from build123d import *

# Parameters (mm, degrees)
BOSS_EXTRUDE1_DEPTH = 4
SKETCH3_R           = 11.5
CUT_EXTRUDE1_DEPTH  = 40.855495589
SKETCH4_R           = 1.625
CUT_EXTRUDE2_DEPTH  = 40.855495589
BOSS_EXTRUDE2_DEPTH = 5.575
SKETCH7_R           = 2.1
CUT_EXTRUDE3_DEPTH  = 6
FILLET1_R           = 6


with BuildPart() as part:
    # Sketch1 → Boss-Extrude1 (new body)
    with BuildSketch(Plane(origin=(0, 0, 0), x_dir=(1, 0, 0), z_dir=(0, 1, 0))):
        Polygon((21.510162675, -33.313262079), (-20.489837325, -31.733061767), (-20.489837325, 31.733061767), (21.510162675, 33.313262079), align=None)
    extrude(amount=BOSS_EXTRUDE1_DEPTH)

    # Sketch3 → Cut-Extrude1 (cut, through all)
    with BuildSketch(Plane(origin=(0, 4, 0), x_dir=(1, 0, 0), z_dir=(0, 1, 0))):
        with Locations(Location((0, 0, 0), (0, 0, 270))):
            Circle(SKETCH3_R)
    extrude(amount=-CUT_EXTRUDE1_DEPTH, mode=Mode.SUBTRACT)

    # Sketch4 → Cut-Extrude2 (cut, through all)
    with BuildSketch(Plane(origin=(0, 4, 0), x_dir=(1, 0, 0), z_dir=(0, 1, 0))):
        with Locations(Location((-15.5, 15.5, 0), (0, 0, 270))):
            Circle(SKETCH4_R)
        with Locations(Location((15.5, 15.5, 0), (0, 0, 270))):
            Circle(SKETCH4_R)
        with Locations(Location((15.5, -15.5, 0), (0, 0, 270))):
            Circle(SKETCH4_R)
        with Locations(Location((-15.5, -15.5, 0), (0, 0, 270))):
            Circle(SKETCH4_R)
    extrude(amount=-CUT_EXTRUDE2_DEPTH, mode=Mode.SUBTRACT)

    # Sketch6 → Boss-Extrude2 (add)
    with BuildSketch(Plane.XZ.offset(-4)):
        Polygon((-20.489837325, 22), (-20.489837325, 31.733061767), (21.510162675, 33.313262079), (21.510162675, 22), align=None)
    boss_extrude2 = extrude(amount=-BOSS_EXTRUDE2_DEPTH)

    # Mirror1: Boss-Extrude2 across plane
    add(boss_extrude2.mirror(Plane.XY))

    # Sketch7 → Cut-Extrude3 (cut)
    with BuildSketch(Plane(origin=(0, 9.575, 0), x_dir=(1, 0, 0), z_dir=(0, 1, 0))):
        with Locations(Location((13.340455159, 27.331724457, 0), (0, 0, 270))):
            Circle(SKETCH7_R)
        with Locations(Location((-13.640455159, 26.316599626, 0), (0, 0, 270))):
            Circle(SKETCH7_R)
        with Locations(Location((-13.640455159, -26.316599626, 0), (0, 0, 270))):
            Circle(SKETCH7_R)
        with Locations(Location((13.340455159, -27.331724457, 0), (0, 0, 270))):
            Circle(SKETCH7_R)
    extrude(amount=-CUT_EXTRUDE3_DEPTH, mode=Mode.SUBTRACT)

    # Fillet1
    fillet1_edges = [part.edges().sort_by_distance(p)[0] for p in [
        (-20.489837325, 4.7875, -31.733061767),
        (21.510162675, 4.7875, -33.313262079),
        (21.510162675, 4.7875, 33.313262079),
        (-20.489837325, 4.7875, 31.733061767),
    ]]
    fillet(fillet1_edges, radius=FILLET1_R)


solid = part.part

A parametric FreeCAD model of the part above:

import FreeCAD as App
import Part
import Sketcher
from FreeCAD import Vector


def edges_at(feature, points):
    """Names of the edges that pass closest to the given points."""
    edges = feature.Shape.Edges
    near = lambda p: min(range(len(edges)), key=lambda i: edges[i].distToShape(Part.Vertex(*p))[0])
    return sorted({f"Edge{near(p) + 1}" for p in points})

doc = App.newDocument("Part")
body = doc.addObject("PartDesign::Body", "Body")

# Sketch on XZ plane
sketch1 = doc.addObject("Sketcher::SketchObject", "Sketch")
body.addObject(sketch1)
sketch1.AttachmentSupport = (doc.XZ_Plane, [""])
sketch1.MapMode = "FlatFace"
sketch1.addGeometry([
    Part.LineSegment(Vector(-20.489837, 31.733062, 0), Vector(21.510163, 33.313262, 0)),
    Part.LineSegment(Vector(21.510163, 33.313262, 0), Vector(21.510163, -33.313262, 0)),
    Part.LineSegment(Vector(21.510163, -33.313262, 0), Vector(-20.489837, -31.733062, 0)),
    Part.LineSegment(Vector(-20.489837, -31.733062, 0), Vector(-20.489837, 31.733062, 0)),
], False)
sketch1.addConstraint([
    Sketcher.Constraint("Coincident", 0, 2, 1, 1),
    Sketcher.Constraint("Coincident", 1, 2, 2, 1),
    Sketcher.Constraint("Coincident", 2, 2, 3, 1),
    Sketcher.Constraint("Coincident", 3, 2, 0, 1),
    Sketcher.Constraint("Vertical", 1),
    Sketcher.Constraint("Vertical", 3),
    Sketcher.Constraint("Equal", 0, 2),
    Sketcher.Constraint("DistanceX", 2, 2, 1, 2, 42.0),
    Sketcher.Constraint("DistanceY", 1, 2, 2, 2, 1.5802),
    Sketcher.Constraint("DistanceY", 1, 2, 1, 1, 66.626524),
    Sketcher.Constraint("DistanceY", 2, 2, -1, 1, 31.733062),
    Sketcher.Constraint("DistanceX", -1, 1, 0, 2, 21.510163),
])
pad1 = doc.addObject("PartDesign::Pad", "Pad")
body.addObject(pad1)
pad1.Profile = sketch1
pad1.Length = 4
pad1.Reversed = True

# Sketch on XZ plane
sketch2 = doc.addObject("Sketcher::SketchObject", "Sketch001")
body.addObject(sketch2)
sketch2.AttachmentSupport = (doc.XZ_Plane, [""])
sketch2.MapMode = "FlatFace"
sketch2.AttachmentOffset = App.Placement(Vector(0, 0, -4), App.Rotation())
sketch2.addGeometry(Part.Circle(Vector(0, 0, 0), Vector(0, 0, 1), 11.5), False)
sketch2.addConstraint([
    Sketcher.Constraint("Coincident", 0, 3, -1, 1),
    Sketcher.Constraint("Diameter", 0, 23.0),
])
pocket1 = doc.addObject("PartDesign::Pocket", "Pocket")
body.addObject(pocket1)
pocket1.Profile = sketch2
pocket1.Type = "ThroughAll"
pocket1.Reversed = True

# Sketch on XZ plane
sketch3 = doc.addObject("Sketcher::SketchObject", "Sketch002")
body.addObject(sketch3)
sketch3.AttachmentSupport = (doc.XZ_Plane, [""])
sketch3.MapMode = "FlatFace"
sketch3.AttachmentOffset = App.Placement(Vector(0, 0, -4), App.Rotation())
sketch3.addGeometry([
    Part.Circle(Vector(-15.5, -15.5, 0), Vector(0, 0, 1), 1.625),
    Part.Circle(Vector(15.5, -15.5, 0), Vector(0, 0, 1), 1.625),
    Part.Circle(Vector(15.5, 15.5, 0), Vector(0, 0, 1), 1.625),
    Part.Circle(Vector(-15.5, 15.5, 0), Vector(0, 0, 1), 1.625),
], False)
sketch3.addConstraint([
    Sketcher.Constraint("Equal", 0, 1),
    Sketcher.Constraint("Equal", 1, 2),
    Sketcher.Constraint("Equal", 2, 3),
    Sketcher.Constraint("Symmetric", 0, 3, 2, 3, -1, 1),
    Sketcher.Constraint("Symmetric", 1, 3, 3, 3, -1, 1),
    Sketcher.Constraint("Symmetric", 0, 3, 1, 3, -2),
    Sketcher.Constraint("Diameter", 0, 3.25),
    Sketcher.Constraint("DistanceX", 0, 3, 1, 3, 31.0),
    Sketcher.Constraint("DistanceY", 1, 3, 2, 3, 31.0),
])
pocket2 = doc.addObject("PartDesign::Pocket", "Pocket001")
body.addObject(pocket2)
pocket2.Profile = sketch3
pocket2.Type = "ThroughAll"
pocket2.Reversed = True

# Sketch on XZ plane
sketch4 = doc.addObject("Sketcher::SketchObject", "Sketch003")
body.addObject(sketch4)
sketch4.AttachmentSupport = (doc.XZ_Plane, [""])
sketch4.MapMode = "FlatFace"
sketch4.AttachmentOffset = App.Placement(Vector(0, 0, -4), App.Rotation())
sketch4.addGeometry([
    Part.LineSegment(Vector(-20.489837, 31.733062, 0), Vector(-20.489837, 22, 0)),
    Part.LineSegment(Vector(-20.489837, 22, 0), Vector(21.510163, 22, 0)),
    Part.LineSegment(Vector(21.510163, 22, 0), Vector(21.510163, 33.313262, 0)),
    Part.LineSegment(Vector(21.510163, 33.313262, 0), Vector(-20.489837, 31.733062, 0)),
], False)
sketch4.addConstraint([
    Sketcher.Constraint("Coincident", 0, 2, 1, 1),
    Sketcher.Constraint("Coincident", 1, 2, 2, 1),
    Sketcher.Constraint("Coincident", 2, 2, 3, 1),
    Sketcher.Constraint("Coincident", 3, 2, 0, 1),
    Sketcher.Constraint("Vertical", 0),
    Sketcher.Constraint("Horizontal", 1),
    Sketcher.Constraint("Vertical", 2),
    Sketcher.Constraint("DistanceX", 1, 1, 1, 2, 42.0),
    Sketcher.Constraint("DistanceY", -1, 1, 0, 2, 22.0),
    Sketcher.Constraint("DistanceY", 0, 2, 0, 1, 9.733062),
    Sketcher.Constraint("DistanceY", 3, 2, 2, 2, 1.5802),
    Sketcher.Constraint("DistanceX", 0, 2, -1, 1, 20.489837),
])
pad2 = doc.addObject("PartDesign::Pad", "Pad001")
body.addObject(pad2)
pad2.Profile = sketch4
pad2.Length = 5.575
pad2.Reversed = True
doc.recompute()

mirrored = doc.addObject("PartDesign::Mirrored", "Mirrored")
body.addObject(mirrored)
mirrored.Originals = [pad2]
mirrored.MirrorPlane = (doc.XY_Plane, [""])
body.Tip = mirrored

# Sketch on XZ plane
sketch5 = doc.addObject("Sketcher::SketchObject", "Sketch004")
body.addObject(sketch5)
sketch5.AttachmentSupport = (doc.XZ_Plane, [""])
sketch5.MapMode = "FlatFace"
sketch5.AttachmentOffset = App.Placement(Vector(0, 0, -9.575), App.Rotation())
sketch5.addGeometry([
    Part.Circle(Vector(13.340455, -27.331724, 0), Vector(0, 0, 1), 2.1),
    Part.Circle(Vector(-13.640455, -26.3166, 0), Vector(0, 0, 1), 2.1),
    Part.Circle(Vector(-13.640455, 26.3166, 0), Vector(0, 0, 1), 2.1),
    Part.Circle(Vector(13.340455, 27.331724, 0), Vector(0, 0, 1), 2.1),
], False)
sketch5.addConstraint([
    Sketcher.Constraint("Equal", 0, 1),
    Sketcher.Constraint("Equal", 1, 2),
    Sketcher.Constraint("Equal", 2, 3),
    Sketcher.Constraint("Symmetric", 1, 3, 2, 3, -1),
    Sketcher.Constraint("Symmetric", 0, 3, 3, 3, -1),
    Sketcher.Constraint("Diameter", 0, 4.2),
    Sketcher.Constraint("DistanceY", 1, 3, -1, 1, 26.3166),
    Sketcher.Constraint("DistanceX", 1, 3, 0, 3, 26.98091),
    Sketcher.Constraint("DistanceY", 0, 3, 3, 3, 54.663449),
    Sketcher.Constraint("DistanceX", -1, 1, 0, 3, 13.340455),
])
pocket3 = doc.addObject("PartDesign::Pocket", "Pocket002")
body.addObject(pocket3)
pocket3.Profile = sketch5
pocket3.Length = 6
pocket3.Reversed = True
doc.recompute()

fillet = doc.addObject("PartDesign::Fillet", "Fillet")
body.addObject(fillet)
fillet.Base = (pocket3, edges_at(pocket3, [
    (-20.49, 4.787, -31.733),
    (21.51, 4.787, -33.313),
    (21.51, 4.787, 33.313),
    (-20.49, 4.787, 31.733),
]))
fillet.Radius = 6

doc.recompute()
